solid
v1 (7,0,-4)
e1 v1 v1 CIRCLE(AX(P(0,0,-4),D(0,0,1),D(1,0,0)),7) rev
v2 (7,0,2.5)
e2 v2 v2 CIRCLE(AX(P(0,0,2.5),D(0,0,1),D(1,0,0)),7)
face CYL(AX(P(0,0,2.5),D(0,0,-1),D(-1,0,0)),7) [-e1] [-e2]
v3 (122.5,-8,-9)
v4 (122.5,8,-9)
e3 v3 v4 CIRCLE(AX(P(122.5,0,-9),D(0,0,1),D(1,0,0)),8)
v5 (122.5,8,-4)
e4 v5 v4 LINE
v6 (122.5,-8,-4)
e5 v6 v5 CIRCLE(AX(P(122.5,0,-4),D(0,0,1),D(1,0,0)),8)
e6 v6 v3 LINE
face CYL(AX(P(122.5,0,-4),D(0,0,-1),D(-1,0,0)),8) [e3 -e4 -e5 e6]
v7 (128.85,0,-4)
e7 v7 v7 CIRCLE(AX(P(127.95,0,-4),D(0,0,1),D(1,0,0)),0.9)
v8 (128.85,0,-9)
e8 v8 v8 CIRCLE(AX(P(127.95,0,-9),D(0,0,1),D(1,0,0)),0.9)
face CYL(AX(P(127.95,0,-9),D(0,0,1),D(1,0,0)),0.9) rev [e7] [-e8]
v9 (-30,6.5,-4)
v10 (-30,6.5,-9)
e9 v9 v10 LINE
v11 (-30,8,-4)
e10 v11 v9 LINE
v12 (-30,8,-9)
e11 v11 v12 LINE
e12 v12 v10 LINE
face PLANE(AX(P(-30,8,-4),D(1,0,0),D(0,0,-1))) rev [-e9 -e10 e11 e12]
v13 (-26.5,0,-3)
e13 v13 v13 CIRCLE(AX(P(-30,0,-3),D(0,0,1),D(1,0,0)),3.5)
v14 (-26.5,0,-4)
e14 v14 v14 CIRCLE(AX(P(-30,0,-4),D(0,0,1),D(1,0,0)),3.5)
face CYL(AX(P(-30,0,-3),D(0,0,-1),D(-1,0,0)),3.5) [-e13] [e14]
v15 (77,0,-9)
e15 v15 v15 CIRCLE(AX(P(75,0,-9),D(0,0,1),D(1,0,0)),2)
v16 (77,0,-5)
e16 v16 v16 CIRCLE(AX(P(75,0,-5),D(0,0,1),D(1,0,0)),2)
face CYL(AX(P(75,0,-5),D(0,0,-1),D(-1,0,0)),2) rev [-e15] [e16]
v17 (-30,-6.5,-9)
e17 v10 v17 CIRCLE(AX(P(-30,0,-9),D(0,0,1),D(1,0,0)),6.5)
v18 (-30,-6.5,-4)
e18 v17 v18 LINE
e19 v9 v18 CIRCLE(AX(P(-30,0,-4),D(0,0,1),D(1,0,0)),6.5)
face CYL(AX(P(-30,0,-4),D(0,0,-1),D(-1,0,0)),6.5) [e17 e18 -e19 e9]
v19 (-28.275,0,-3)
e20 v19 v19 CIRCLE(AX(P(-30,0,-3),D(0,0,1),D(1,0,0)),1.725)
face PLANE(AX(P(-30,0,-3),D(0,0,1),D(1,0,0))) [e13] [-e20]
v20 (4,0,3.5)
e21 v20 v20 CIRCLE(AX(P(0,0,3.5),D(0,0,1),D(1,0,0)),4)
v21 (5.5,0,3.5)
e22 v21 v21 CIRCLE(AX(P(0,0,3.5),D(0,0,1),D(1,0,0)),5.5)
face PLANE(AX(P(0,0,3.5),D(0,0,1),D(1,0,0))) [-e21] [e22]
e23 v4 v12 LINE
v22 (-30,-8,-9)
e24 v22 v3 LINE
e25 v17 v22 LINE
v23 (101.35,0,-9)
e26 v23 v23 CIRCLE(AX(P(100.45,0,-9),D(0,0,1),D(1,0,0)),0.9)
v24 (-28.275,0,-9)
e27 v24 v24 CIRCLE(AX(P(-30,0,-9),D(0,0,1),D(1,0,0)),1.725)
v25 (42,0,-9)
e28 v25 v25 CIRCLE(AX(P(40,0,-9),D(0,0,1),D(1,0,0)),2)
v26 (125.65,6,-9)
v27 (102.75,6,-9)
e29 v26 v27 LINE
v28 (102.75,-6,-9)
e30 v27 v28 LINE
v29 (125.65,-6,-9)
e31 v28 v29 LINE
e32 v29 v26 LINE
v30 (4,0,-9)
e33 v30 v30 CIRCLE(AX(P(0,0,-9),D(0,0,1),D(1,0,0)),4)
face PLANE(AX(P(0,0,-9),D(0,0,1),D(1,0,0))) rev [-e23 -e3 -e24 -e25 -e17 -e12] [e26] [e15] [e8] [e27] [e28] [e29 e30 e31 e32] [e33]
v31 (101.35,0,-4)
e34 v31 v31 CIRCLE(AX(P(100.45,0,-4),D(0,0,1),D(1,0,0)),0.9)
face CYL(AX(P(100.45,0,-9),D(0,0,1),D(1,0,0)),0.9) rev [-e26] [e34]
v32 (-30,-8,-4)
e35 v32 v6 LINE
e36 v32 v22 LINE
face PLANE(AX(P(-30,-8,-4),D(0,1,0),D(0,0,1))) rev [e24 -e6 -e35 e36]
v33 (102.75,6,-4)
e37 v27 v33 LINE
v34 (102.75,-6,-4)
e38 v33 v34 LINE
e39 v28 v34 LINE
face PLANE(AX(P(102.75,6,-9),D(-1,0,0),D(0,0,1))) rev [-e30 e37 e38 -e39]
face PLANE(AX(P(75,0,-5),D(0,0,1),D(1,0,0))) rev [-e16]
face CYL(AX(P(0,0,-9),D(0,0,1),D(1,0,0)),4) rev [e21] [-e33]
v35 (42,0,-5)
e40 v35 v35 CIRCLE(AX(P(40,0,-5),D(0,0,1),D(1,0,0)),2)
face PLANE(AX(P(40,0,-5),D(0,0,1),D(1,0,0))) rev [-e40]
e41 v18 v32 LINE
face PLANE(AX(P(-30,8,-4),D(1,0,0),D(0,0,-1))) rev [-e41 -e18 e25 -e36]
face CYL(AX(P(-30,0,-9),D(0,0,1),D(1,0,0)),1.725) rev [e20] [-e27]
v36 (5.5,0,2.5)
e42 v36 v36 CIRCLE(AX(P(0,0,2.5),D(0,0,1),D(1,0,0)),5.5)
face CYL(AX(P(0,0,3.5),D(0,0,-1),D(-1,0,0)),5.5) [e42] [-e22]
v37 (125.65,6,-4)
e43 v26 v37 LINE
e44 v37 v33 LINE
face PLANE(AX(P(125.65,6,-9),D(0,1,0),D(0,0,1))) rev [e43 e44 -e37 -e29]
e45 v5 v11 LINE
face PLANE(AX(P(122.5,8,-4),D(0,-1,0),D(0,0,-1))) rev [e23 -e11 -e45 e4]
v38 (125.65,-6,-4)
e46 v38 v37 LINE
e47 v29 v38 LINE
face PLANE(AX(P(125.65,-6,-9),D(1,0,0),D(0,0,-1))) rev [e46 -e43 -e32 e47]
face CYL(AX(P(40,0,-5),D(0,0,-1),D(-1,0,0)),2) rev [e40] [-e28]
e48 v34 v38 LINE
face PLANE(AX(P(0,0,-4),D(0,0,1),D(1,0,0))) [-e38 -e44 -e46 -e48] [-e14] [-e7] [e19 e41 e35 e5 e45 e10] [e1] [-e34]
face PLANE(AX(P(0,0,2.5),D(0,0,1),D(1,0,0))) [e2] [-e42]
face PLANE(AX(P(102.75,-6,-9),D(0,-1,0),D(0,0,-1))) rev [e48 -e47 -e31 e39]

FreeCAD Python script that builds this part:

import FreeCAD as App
import Part
import Sketcher

doc = App.newDocument("Part")
params = doc.addObject("Spreadsheet::Sheet", "Params")
for row, (alias, value) in enumerate([
    ("sketch1_height", "16 mm"),
    ("sketch1_width", "152.5 mm"),
    ("pad1_length", "5 mm"),
    ("sketch2_diameter", "13 mm"),
    ("pad2_length", "5 mm"),
    ("sketch3_diameter", "16 mm"),
    ("pad3_length", "5 mm"),
    ("sketch4_diameter", "14 mm"),
    ("pad4_length", "11.5 mm"),
    ("sketch5_diameter", "11 mm"),
    ("pad5_length", "1 mm"),
    ("sketch6_diameter", "7 mm"),
    ("pad6_length", "1 mm"),
    ("sketch7_diameter", "8 mm"),
    ("sketch8_diameter", "3.45 mm"),
    ("sketch9_height", "12 mm"),
    ("sketch9_width", "22.9 mm"),
    ("sketch10_diameter", "1.8 mm"),
    ("sketch11_diameter", "4 mm"),
    ("pocket5_length", "4 mm"),
], start=1):
    params.set(f"A{row}", alias)
    params.set(f"B{row}", "=" + value)
    params.setAlias(f"B{row}", alias)

body = doc.addObject("PartDesign::Body", "Body")

sketch1 = doc.addObject("Sketcher::SketchObject", "Sketch")
body.addObject(sketch1)
sketch1.AttachmentSupport = (doc.XY_Plane, [""])
sketch1.MapMode = "FlatFace"
sketch1.AttachmentOffset = App.Placement(App.Vector(0, 0, -9), App.Rotation())
sketch1.addGeometry(Part.LineSegment(App.Vector(-30, 8, 0), App.Vector(-30, -8, 0)), False)
sketch1.addGeometry(Part.LineSegment(App.Vector(-30, -8, 0), App.Vector(122, -8, 0)), False)
sketch1.addGeometry(Part.LineSegment(App.Vector(122, -8, 0), App.Vector(122, 8, 0)), False)
sketch1.addGeometry(Part.LineSegment(App.Vector(122, 8, 0), App.Vector(-30, 8, 0)), False)
sketch1.addConstraint(Sketcher.Constraint("Coincident", 0, 2, 1, 1))
sketch1.addConstraint(Sketcher.Constraint("Coincident", 1, 2, 2, 1))
sketch1.addConstraint(Sketcher.Constraint("Coincident", 2, 2, 3, 1))
sketch1.addConstraint(Sketcher.Constraint("Coincident", 3, 2, 0, 1))
sketch1.addConstraint(Sketcher.Constraint("Vertical", 0))
sketch1.addConstraint(Sketcher.Constraint("Horizontal", 1))
sketch1.addConstraint(Sketcher.Constraint("Vertical", 2))
sketch1.addConstraint(Sketcher.Constraint("Horizontal", 3))
sketch1.addConstraint(Sketcher.Constraint("DistanceY", 0, 2, 0, 1, 16.0))
sketch1.addConstraint(Sketcher.Constraint("DistanceX", 1, 1, 1, 2, 152.5))
sketch1.addConstraint(Sketcher.Constraint("DistanceX", 0, 2, -1, 1, 30.0))
sketch1.addConstraint(Sketcher.Constraint("DistanceY", 0, 2, -1, 1, 8.0))
sketch1.setExpression("Constraints[8]", "Params.sketch1_height")
sketch1.setExpression("Constraints[9]", "Params.sketch1_width")
pad1 = doc.addObject("PartDesign::Pad", "Pad")
body.addObject(pad1)
pad1.Profile = sketch1
pad1.setExpression("Length", "Params.pad1_length")

sketch2 = doc.addObject("Sketcher::SketchObject", "Sketch001")
body.addObject(sketch2)
sketch2.AttachmentSupport = (doc.XY_Plane, [""])
sketch2.MapMode = "FlatFace"
sketch2.AttachmentOffset = App.Placement(App.Vector(0, 0, -9), App.Rotation())
sketch2.addGeometry(Part.Circle(App.Vector(-30, 0, 0), App.Vector(0, 0, 1), 6), False)
sketch2.addConstraint(Sketcher.Constraint("PointOnObject", 0, 3, -1))
sketch2.addConstraint(Sketcher.Constraint("Diameter", 0, 13.0))
sketch2.addConstraint(Sketcher.Constraint("DistanceX", 0, 3, -1, 1, 30.0))
sketch2.setExpression("Constraints[1]", "Params.sketch2_diameter")
pad2 = doc.addObject("PartDesign::Pad", "Pad001")
body.addObject(pad2)
pad2.Profile = sketch2
pad2.setExpression("Length", "Params.pad2_length")

sketch3 = doc.addObject("Sketcher::SketchObject", "Sketch002")
body.addObject(sketch3)
sketch3.AttachmentSupport = (doc.XY_Plane, [""])
sketch3.MapMode = "FlatFace"
sketch3.AttachmentOffset = App.Placement(App.Vector(0, 0, -9), App.Rotation())
sketch3.addGeometry(Part.Circle(App.Vector(122, 0, 0), App.Vector(0, 0, 1), 8), False)
sketch3.addConstraint(Sketcher.Constraint("PointOnObject", 0, 3, -1))
sketch3.addConstraint(Sketcher.Constraint("Diameter", 0, 16.0))
sketch3.addConstraint(Sketcher.Constraint("DistanceX", -1, 1, 0, 3, 122.5))
sketch3.setExpression("Constraints[1]", "Params.sketch3_diameter")
pad3 = doc.addObject("PartDesign::Pad", "Pad002")
body.addObject(pad3)
pad3.Profile = sketch3
pad3.setExpression("Length", "Params.pad3_length")

sketch4 = doc.addObject("Sketcher::SketchObject", "Sketch003")
body.addObject(sketch4)
sketch4.AttachmentSupport = (doc.XY_Plane, [""])
sketch4.MapMode = "FlatFace"
sketch4.AttachmentOffset = App.Placement(App.Vector(0, 0, -9), App.Rotation())
sketch4.addGeometry(Part.Circle(App.Vector(0, 0, 0), App.Vector(0, 0, 1), 7), False)
sketch4.addConstraint(Sketcher.Constraint("Coincident", 0, 3, -1, 1))
sketch4.addConstraint(Sketcher.Constraint("Diameter", 0, 14.0))
sketch4.setExpression("Constraints[1]", "Params.sketch4_diameter")
pad4 = doc.addObject("PartDesign::Pad", "Pad003")
body.addObject(pad4)
pad4.Profile = sketch4
pad4.setExpression("Length", "Params.pad4_length")

sketch5 = doc.addObject("Sketcher::SketchObject", "Sketch004")
body.addObject(sketch5)
sketch5.AttachmentSupport = (doc.XY_Plane, [""])
sketch5.MapMode = "FlatFace"
sketch5.AttachmentOffset = App.Placement(App.Vector(0, 0, 2.5), App.Rotation())
sketch5.addGeometry(Part.Circle(App.Vector(0, 0, 0), App.Vector(0, 0, 1), 6), False)
sketch5.addConstraint(Sketcher.Constraint("Coincident", 0, 3, -1, 1))
sketch5.addConstraint(Sketcher.Constraint("Diameter", 0, 11.0))
sketch5.setExpression("Constraints[1]", "Params.sketch5_diameter")
pad5 = doc.addObject("PartDesign::Pad", "Pad004")
body.addObject(pad5)
pad5.Profile = sketch5
pad5.setExpression("Length", "Params.pad5_length")

sketch6 = doc.addObject("Sketcher::SketchObject", "Sketch005")
body.addObject(sketch6)
sketch6.AttachmentSupport = (doc.XY_Plane, [""])
sketch6.MapMode = "FlatFace"
sketch6.AttachmentOffset = App.Placement(App.Vector(0, 0, -4), App.Rotation())
sketch6.addGeometry(Part.Circle(App.Vector(-30, 0, 0), App.Vector(0, 0, 1), 3.5), False)
sketch6.addConstraint(Sketcher.Constraint("PointOnObject", 0, 3, -1))
sketch6.addConstraint(Sketcher.Constraint("Diameter", 0, 7.0))
sketch6.addConstraint(Sketcher.Constraint("DistanceX", 0, 3, -1, 1, 30.0))
sketch6.setExpression("Constraints[1]", "Params.sketch6_diameter")
pad6 = doc.addObject("PartDesign::Pad", "Pad005")
body.addObject(pad6)
pad6.Profile = sketch6
pad6.setExpression("Length", "Params.pad6_length")

sketch7 = doc.addObject("Sketcher::SketchObject", "Sketch006")
body.addObject(sketch7)
sketch7.AttachmentSupport = (doc.XY_Plane, [""])
sketch7.MapMode = "FlatFace"
sketch7.addGeometry(Part.Circle(App.Vector(0, 0, 0), App.Vector(0, 0, 1), 4), False)
sketch7.addConstraint(Sketcher.Constraint("Coincident", 0, 3, -1, 1))
sketch7.addConstraint(Sketcher.Constraint("Diameter", 0, 8.0))
sketch7.setExpression("Constraints[1]", "Params.sketch7_diameter")
pocket1 = doc.addObject("PartDesign::Pocket", "Pocket")
body.addObject(pocket1)
pocket1.Profile = sketch7
pocket1.Type = "ThroughAll"
pocket1.Midplane = True

sketch8 = doc.addObject("Sketcher::SketchObject", "Sketch007")
body.addObject(sketch8)
sketch8.AttachmentSupport = (doc.XY_Plane, [""])
sketch8.MapMode = "FlatFace"
sketch8.addGeometry(Part.Circle(App.Vector(-30, 0, 0), App.Vector(0, 0, 1), 1.7), False)
sketch8.addConstraint(Sketcher.Constraint("PointOnObject", 0, 3, -1))
sketch8.addConstraint(Sketcher.Constraint("Diameter", 0, 3.45))
sketch8.addConstraint(Sketcher.Constraint("DistanceX", 0, 3, -1, 1, 30.0))
sketch8.setExpression("Constraints[1]", "Params.sketch8_diameter")
pocket2 = doc.addObject("PartDesign::Pocket", "Pocket001")
body.addObject(pocket2)
pocket2.Profile = sketch8
pocket2.Type = "ThroughAll"
pocket2.Midplane = True

sketch9 = doc.addObject("Sketcher::SketchObject", "Sketch008")
body.addObject(sketch9)
sketch9.AttachmentSupport = (doc.XY_Plane, [""])
sketch9.MapMode = "FlatFace"
sketch9.addGeometry(Part.LineSegment(App.Vector(103, 6, 0), App.Vector(103, -6, 0)), False)
sketch9.addGeometry(Part.LineSegment(App.Vector(103, -6, 0), App.Vector(126, -6, 0)), False)
sketch9.addGeometry(Part.LineSegment(App.Vector(126, -6, 0), App.Vector(126, 6, 0)), False)
sketch9.addGeometry(Part.LineSegment(App.Vector(126, 6, 0), App.Vector(103, 6, 0)), False)
sketch9.addConstraint(Sketcher.Constraint("Coincident", 0, 2, 1, 1))
sketch9.addConstraint(Sketcher.Constraint("Coincident", 1, 2, 2, 1))
sketch9.addConstraint(Sketcher.Constraint("Coincident", 2, 2, 3, 1))
sketch9.addConstraint(Sketcher.Constraint("Coincident", 3, 2, 0, 1))
sketch9.addConstraint(Sketcher.Constraint("Vertical", 0))
sketch9.addConstraint(Sketcher.Constraint("Horizontal", 1))
sketch9.addConstraint(Sketcher.Constraint("Vertical", 2))
sketch9.addConstraint(Sketcher.Constraint("Horizontal", 3))
sketch9.addConstraint(Sketcher.Constraint("DistanceY", 0, 2, 0, 1, 12.0))
sketch9.addConstraint(Sketcher.Constraint("DistanceX", 1, 1, 1, 2, 22.9))
sketch9.addConstraint(Sketcher.Constraint("DistanceY", 0, 2, -1, 1, 6.0))
sketch9.addConstraint(Sketcher.Constraint("DistanceX", -1, 1, 0, 2, 102.75))
sketch9.setExpression("Constraints[8]", "Params.sketch9_height")
sketch9.setExpression("Constraints[9]", "Params.sketch9_width")
pocket3 = doc.addObject("PartDesign::Pocket", "Pocket002")
body.addObject(pocket3)
pocket3.Profile = sketch9
pocket3.Type = "ThroughAll"
pocket3.Midplane = True

sketch10 = doc.addObject("Sketcher::SketchObject", "Sketch009")
body.addObject(sketch10)
sketch10.AttachmentSupport = (doc.XY_Plane, [""])
sketch10.MapMode = "FlatFace"
sketch10.addGeometry(Part.Circle(App.Vector(100.5, 0, 0), App.Vector(0, 0, 1), 0.9), False)
sketch10.addGeometry(Part.Circle(App.Vector(128, 0, 0), App.Vector(0, 0, 1), 0.9), False)
sketch10.addConstraint(Sketcher.Constraint("Equal", 0, 1))
sketch10.addConstraint(Sketcher.Constraint("PointOnObject", 0, 3, -1))
sketch10.addConstraint(Sketcher.Constraint("PointOnObject", 1, 3, -1))
sketch10.addConstraint(Sketcher.Constraint("Diameter", 0, 1.8))
sketch10.addConstraint(Sketcher.Constraint("DistanceX", 0, 3, 1, 3, 27.5))
sketch10.addConstraint(Sketcher.Constraint("DistanceX", -1, 1, 0, 3, 100.45))
sketch10.setExpression("Constraints[3]", "Params.sketch10_diameter")
pocket4 = doc.addObject("PartDesign::Pocket", "Pocket003")
body.addObject(pocket4)
pocket4.Profile = sketch10
pocket4.Type = "ThroughAll"
pocket4.Midplane = True

sketch11 = doc.addObject("Sketcher::SketchObject", "Sketch010")
body.addObject(sketch11)
sketch11.AttachmentSupport = (doc.XY_Plane, [""])
sketch11.MapMode = "FlatFace"
sketch11.AttachmentOffset = App.Placement(App.Vector(0, 0, -9), App.Rotation())
sketch11.addGeometry(Part.Circle(App.Vector(40, 0, 0), App.Vector(0, 0, 1), 2), False)
sketch11.addGeometry(Part.Circle(App.Vector(75, 0, 0), App.Vector(0, 0, 1), 2), False)
sketch11.addConstraint(Sketcher.Constraint("Equal", 0, 1))
sketch11.addConstraint(Sketcher.Constraint("PointOnObject", 0, 3, -1))
sketch11.addConstraint(Sketcher.Constraint("PointOnObject", 1, 3, -1))
sketch11.addConstraint(Sketcher.Constraint("Diameter", 0, 4.0))
sketch11.addConstraint(Sketcher.Constraint("DistanceX", -1, 1, 0, 3, 40.0))
sketch11.addConstraint(Sketcher.Constraint("DistanceX", -1, 1, 1, 3, 75.0))
sketch11.setExpression("Constraints[3]", "Params.sketch11_diameter")
pocket5 = doc.addObject("PartDesign::Pocket", "Pocket004")
body.addObject(pocket5)
pocket5.Profile = sketch11
pocket5.setExpression("Length", "Params.pocket5_length")
pocket5.Reversed = True

doc.recompute()
